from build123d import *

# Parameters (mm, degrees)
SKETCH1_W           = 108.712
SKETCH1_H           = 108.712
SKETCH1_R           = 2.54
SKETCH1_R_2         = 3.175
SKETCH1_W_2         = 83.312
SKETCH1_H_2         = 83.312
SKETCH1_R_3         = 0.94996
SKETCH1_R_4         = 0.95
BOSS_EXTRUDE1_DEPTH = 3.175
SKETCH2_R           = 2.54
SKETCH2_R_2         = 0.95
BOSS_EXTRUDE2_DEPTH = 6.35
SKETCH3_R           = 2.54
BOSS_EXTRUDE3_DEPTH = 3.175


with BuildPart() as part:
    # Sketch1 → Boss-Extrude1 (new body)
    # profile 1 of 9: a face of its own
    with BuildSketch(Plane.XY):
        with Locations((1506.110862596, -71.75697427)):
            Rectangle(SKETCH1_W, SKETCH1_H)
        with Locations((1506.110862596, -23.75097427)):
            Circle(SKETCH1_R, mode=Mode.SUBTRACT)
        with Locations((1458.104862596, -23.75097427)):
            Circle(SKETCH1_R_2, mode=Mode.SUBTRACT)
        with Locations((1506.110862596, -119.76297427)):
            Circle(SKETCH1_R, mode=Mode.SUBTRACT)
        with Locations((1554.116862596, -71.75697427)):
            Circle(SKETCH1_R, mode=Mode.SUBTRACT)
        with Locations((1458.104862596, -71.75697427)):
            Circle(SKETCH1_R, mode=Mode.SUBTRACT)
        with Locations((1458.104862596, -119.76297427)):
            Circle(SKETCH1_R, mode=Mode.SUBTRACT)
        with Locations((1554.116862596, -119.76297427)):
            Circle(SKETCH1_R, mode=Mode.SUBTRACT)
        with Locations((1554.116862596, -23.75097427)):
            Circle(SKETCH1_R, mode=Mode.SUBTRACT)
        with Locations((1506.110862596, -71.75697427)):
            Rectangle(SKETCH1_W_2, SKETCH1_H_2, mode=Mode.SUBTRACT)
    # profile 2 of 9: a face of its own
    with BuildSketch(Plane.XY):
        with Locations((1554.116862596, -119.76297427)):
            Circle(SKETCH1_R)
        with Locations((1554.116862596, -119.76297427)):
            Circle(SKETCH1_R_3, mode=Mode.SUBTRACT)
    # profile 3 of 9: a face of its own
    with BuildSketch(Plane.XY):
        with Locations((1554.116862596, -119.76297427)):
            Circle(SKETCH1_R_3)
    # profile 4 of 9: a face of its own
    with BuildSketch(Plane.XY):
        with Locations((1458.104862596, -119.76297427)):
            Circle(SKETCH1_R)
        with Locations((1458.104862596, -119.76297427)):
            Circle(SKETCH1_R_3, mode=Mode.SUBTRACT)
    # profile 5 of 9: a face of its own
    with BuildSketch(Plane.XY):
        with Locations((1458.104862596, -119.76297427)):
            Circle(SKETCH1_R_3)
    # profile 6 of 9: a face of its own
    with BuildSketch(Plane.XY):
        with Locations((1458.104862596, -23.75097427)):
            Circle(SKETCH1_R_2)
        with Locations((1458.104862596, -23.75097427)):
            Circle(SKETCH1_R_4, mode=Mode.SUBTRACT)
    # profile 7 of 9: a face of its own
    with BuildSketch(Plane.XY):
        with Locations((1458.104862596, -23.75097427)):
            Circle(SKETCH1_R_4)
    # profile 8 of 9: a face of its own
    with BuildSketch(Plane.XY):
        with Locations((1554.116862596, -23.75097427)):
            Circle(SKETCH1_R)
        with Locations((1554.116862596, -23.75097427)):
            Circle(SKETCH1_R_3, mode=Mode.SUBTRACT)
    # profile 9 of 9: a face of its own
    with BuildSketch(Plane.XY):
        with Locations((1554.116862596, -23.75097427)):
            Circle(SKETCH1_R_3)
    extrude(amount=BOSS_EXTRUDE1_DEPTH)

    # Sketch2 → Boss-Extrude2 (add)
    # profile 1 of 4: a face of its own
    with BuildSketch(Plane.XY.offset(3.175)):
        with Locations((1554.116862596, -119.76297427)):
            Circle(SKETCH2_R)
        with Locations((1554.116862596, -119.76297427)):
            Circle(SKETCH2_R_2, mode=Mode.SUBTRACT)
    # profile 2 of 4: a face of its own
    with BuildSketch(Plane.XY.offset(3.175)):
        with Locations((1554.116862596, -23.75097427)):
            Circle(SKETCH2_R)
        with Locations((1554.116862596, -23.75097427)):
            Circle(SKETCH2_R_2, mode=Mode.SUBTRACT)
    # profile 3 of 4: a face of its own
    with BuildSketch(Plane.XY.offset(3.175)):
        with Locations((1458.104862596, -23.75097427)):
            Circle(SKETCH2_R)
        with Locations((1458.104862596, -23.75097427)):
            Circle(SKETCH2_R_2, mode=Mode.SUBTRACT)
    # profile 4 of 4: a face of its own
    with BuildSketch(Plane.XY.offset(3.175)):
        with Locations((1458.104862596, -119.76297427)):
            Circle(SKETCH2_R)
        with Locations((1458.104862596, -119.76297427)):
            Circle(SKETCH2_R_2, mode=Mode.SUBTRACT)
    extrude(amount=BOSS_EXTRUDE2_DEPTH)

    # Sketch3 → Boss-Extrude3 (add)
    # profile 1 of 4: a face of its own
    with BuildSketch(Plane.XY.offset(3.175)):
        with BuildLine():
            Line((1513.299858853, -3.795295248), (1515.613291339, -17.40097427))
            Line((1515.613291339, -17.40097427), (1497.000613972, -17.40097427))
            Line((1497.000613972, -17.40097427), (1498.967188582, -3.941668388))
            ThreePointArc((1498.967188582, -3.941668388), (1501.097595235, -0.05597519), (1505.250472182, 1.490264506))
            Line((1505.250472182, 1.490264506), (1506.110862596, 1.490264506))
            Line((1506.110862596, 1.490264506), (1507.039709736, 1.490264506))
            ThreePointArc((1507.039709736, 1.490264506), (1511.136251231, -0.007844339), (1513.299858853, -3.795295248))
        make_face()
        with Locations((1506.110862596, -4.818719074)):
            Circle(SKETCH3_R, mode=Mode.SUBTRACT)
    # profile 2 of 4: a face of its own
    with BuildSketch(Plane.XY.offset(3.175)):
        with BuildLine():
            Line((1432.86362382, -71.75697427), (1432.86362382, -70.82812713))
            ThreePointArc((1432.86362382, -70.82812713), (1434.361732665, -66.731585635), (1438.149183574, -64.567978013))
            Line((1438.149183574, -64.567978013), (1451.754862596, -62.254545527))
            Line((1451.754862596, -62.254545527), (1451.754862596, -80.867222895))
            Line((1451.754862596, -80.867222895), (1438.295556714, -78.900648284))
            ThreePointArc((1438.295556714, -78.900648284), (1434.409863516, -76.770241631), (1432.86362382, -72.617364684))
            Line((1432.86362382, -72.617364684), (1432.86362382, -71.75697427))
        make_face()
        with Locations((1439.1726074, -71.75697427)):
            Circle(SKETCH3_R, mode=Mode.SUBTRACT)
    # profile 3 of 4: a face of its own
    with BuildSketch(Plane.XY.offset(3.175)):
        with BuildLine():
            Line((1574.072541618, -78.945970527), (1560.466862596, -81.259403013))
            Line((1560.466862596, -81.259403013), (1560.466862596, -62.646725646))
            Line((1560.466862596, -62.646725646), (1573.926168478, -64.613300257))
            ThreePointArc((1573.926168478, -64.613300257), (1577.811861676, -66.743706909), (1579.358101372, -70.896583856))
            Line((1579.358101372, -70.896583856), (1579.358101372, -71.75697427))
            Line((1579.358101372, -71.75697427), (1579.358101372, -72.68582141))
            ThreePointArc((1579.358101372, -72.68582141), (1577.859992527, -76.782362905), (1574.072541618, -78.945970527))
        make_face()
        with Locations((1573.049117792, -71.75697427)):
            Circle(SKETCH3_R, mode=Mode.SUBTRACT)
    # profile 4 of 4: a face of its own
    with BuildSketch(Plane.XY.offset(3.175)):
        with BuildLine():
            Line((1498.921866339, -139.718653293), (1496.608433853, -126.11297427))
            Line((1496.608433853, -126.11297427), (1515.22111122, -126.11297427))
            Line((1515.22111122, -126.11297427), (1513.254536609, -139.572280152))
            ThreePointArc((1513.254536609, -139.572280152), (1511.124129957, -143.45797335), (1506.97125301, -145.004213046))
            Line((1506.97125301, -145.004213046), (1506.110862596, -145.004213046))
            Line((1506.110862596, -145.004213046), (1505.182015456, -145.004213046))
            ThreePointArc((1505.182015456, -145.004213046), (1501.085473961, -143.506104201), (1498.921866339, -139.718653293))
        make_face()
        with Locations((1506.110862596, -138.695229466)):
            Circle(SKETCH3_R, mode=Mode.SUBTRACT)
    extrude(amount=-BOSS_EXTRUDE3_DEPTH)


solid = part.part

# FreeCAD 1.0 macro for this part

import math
import FreeCAD as App
import Part
import Sketcher
Q = App.Units.Quantity

doc = App.newDocument("Part")
body = doc.addObject("PartDesign::Body", "Body")

# Sketch on XY plane
sketch1 = body.newObject("Sketcher::SketchObject", "Sketch")
sketch1.AttachmentSupport = (doc.getObject("XY_Plane"), [""])
sketch1.MapMode = "FlatFace"
sketch1.addGeometry([
    Part.LineSegment(App.Vector(1451.754863, -17.400974, 0), App.Vector(1451.754863, -126.112974, 0)),  # 0
    Part.LineSegment(App.Vector(1451.754863, -126.112974, 0), App.Vector(1560.466863, -126.112974, 0)),  # 1
    Part.LineSegment(App.Vector(1560.466863, -126.112974, 0), App.Vector(1560.466863, -17.400974, 0)),  # 2
    Part.LineSegment(App.Vector(1560.466863, -17.400974, 0), App.Vector(1451.754863, -17.400974, 0)),  # 3
    Part.Circle(App.Vector(1458.104863, -71.756974, 0), App.Vector(0, 0, 1), 2.54),  # 4
    Part.Circle(App.Vector(1506.110863, -119.762974, 0), App.Vector(0, 0, 1), 2.54),  # 5
    Part.LineSegment(App.Vector(1547.766863, -113.412974, 0), App.Vector(1464.454863, -113.412974, 0)),  # 6
    Part.LineSegment(App.Vector(1464.454863, -113.412974, 0), App.Vector(1464.454863, -30.100974, 0)),  # 7
    Part.LineSegment(App.Vector(1464.454863, -30.100974, 0), App.Vector(1547.766863, -30.100974, 0)),  # 8
    Part.LineSegment(App.Vector(1547.766863, -30.100974, 0), App.Vector(1547.766863, -113.412974, 0)),  # 9
    Part.Circle(App.Vector(1554.116863, -71.756974, 0), App.Vector(0, 0, 1), 2.54),  # 10
    Part.Circle(App.Vector(1506.110863, -23.750974, 0), App.Vector(0, 0, 1), 2.54),  # 11
], False)
sketch1.addConstraint([
    Sketcher.Constraint("Coincident", 0, 2, 1, 1),
    Sketcher.Constraint("Coincident", 1, 2, 2, 1),
    Sketcher.Constraint("Coincident", 2, 2, 3, 1),
    Sketcher.Constraint("Coincident", 3, 2, 0, 1),
    Sketcher.Constraint("Coincident", 6, 2, 7, 1),
    Sketcher.Constraint("Coincident", 7, 2, 8, 1),
    Sketcher.Constraint("Coincident", 8, 2, 9, 1),
    Sketcher.Constraint("Coincident", 9, 2, 6, 1),
    Sketcher.Constraint("Vertical", 0),
    Sketcher.Constraint("Horizontal", 1),
    Sketcher.Constraint("Vertical", 2),
    Sketcher.Constraint("Horizontal", 3),
    Sketcher.Constraint("Horizontal", 6),
    Sketcher.Constraint("Vertical", 7),
    Sketcher.Constraint("Horizontal", 8),
    Sketcher.Constraint("Vertical", 9),
    Sketcher.Constraint("Equal", 4, 5),
    Sketcher.Constraint("Equal", 5, 10),
    Sketcher.Constraint("Equal", 10, 11),
    Sketcher.Constraint("Horizontal", 4, 3, 10, 3),
    Sketcher.Constraint("Vertical", 5, 3, 11, 3),
    Sketcher.Constraint("Equal", 3, 0),
    Sketcher.Constraint("Equal", 8, 7),
    Sketcher.Constraint("Diameter", 4, Q("0.2 in")),
    Sketcher.Constraint("DistanceX", 1, 1, 1, 2, Q("4.28 in")),
    Sketcher.Constraint("DistanceX", 6, 2, 6, 1, Q("3.28 in")),
    Sketcher.Constraint("DistanceX", 0, 2, 6, 2, Q("0.5 in")),
    Sketcher.Constraint("DistanceY", 0, 2, 6, 2, Q("0.5 in")),
    Sketcher.Constraint("DistanceX", 4, 3, 5, 3, Q("1.89 in")),
    Sketcher.Constraint("DistanceY", 5, 3, 4, 3, Q("1.89 in")),
    Sketcher.Constraint("DistanceX", 5, 3, 10, 3, Q("1.89 in")),
    Sketcher.Constraint("DistanceY", 10, 3, 11, 3, Q("1.89 in")),
    Sketcher.Constraint("DistanceX", 0, 2, 4, 3, Q("0.25 in")),
    Sketcher.Constraint("DistanceY", 0, 2, 4, 3, Q("2.14 in")),
    Sketcher.Constraint("DistanceX", -1, 1, 4, 3, Q("1458.104863 mm")),
    Sketcher.Constraint("DistanceY", 4, 3, -1, 1, Q("71.756974 mm")),
])
pad1 = body.newObject("PartDesign::Pad", "Pad")
pad1.Profile = sketch1
pad1.Length = Q("0.125 in")

# Sketch on XY plane
sketch2 = body.newObject("Sketcher::SketchObject", "Sketch001")
sketch2.AttachmentSupport = (doc.getObject("XY_Plane"), [""])
sketch2.MapMode = "FlatFace"
sketch2.AttachmentOffset = App.Placement(App.Vector(0, 0, 0.125 * 25.4), App.Rotation())
sketch2.addGeometry([
    Part.Circle(App.Vector(1554.116863, -119.762974, 0), App.Vector(0, 0, 1), 2.54),  # 0
    Part.Circle(App.Vector(1554.116863, -119.762974, 0), App.Vector(0, 0, 1), 0.95),  # 1
    Part.Circle(App.Vector(1554.116863, -23.750974, 0), App.Vector(0, 0, 1), 2.54),  # 2
    Part.Circle(App.Vector(1554.116863, -23.750974, 0), App.Vector(0, 0, 1), 0.95),  # 3
    Part.Circle(App.Vector(1458.104863, -23.750974, 0), App.Vector(0, 0, 1), 2.54),  # 4
    Part.Circle(App.Vector(1458.104863, -23.750974, 0), App.Vector(0, 0, 1), 0.95),  # 5
    Part.Circle(App.Vector(1458.104863, -119.762974, 0), App.Vector(0, 0, 1), 2.54),  # 6
    Part.Circle(App.Vector(1458.104863, -119.762974, 0), App.Vector(0, 0, 1), 0.95),  # 7
], False)
sketch2.addConstraint([
    Sketcher.Constraint("Coincident", 1, 3, 0, 3),
    Sketcher.Constraint("Coincident", 3, 3, 2, 3),
    Sketcher.Constraint("Coincident", 5, 3, 4, 3),
    Sketcher.Constraint("Coincident", 7, 3, 6, 3),
    Sketcher.Constraint("Equal", 0, 2),
    Sketcher.Constraint("Equal", 1, 3),
    Sketcher.Constraint("Equal", 2, 4),
    Sketcher.Constraint("Equal", 3, 5),
    Sketcher.Constraint("Equal", 4, 6),
    Sketcher.Constraint("Equal", 5, 7),
    Sketcher.Constraint("Horizontal", 3, 3, 4, 3),
    Sketcher.Constraint("Horizontal", 1, 3, 6, 3),
    Sketcher.Constraint("Vertical", 1, 3, 2, 3),
    Sketcher.Constraint("Vertical", 5, 3, 6, 3),
    Sketcher.Constraint("Diameter", 0, Q("0.2 in")),
    Sketcher.Constraint("Diameter", 1, Q("1.9 mm")),
    Sketcher.Constraint("DistanceY", 0, 3, 2, 3, Q("3.78 in")),
    Sketcher.Constraint("DistanceX", 4, 3, 2, 3, Q("3.78 in")),
    Sketcher.Constraint("DistanceX", -1, 1, 0, 3, Q("1554.116863 mm")),
    Sketcher.Constraint("DistanceY", 0, 3, -1, 1, Q("119.762974 mm")),
])
pad2 = body.newObject("PartDesign::Pad", "Pad001")
pad2.Profile = sketch2
pad2.Length = Q("0.25 in")

# Sketch on XY plane
sketch3 = body.newObject("Sketcher::SketchObject", "Sketch002")
sketch3.AttachmentSupport = (doc.getObject("XY_Plane"), [""])
sketch3.MapMode = "FlatFace"
sketch3.AttachmentOffset = App.Placement(App.Vector(0, 0, 0.125 * 25.4), App.Rotation())
sketch3.addGeometry([
    Part.LineSegment(App.Vector(1515.613291, -17.400974, 0), App.Vector(1513.299859, -3.795295, 0)),  # 0
    Part.ArcOfCircle(Part.Circle(App.Vector(1507.03971, -4.859735, 0), App.Vector(0, 0, 1), 6.35), math.radians(9.649957), math.radians(90)),  # 1
    Part.LineSegment(App.Vector(1507.03971, 1.490265, 0), App.Vector(1505.250472, 1.490265, 0)),  # 2
    Part.ArcOfCircle(Part.Circle(App.Vector(1505.250472, -4.859735, 0), App.Vector(0, 0, 1), 6.35), math.radians(90), math.radians(171.687186)),  # 3
    Part.LineSegment(App.Vector(1498.967189, -3.941668, 0), App.Vector(1497.000614, -17.400974, 0)),  # 4
    Part.LineSegment(App.Vector(1497.000614, -17.400974, 0), App.Vector(1515.613291, -17.400974, 0)),  # 5
    Part.Circle(App.Vector(1506.110863, -4.818719, 0), App.Vector(0, 0, 1), 2.54),  # 6
    Part.ArcOfCircle(Part.Circle(App.Vector(1439.213624, -70.828127, 0), App.Vector(0, 0, 1), 6.35), math.radians(99.649957), math.radians(180)),  # 7
    Part.LineSegment(App.Vector(1432.863624, -70.828127, 0), App.Vector(1432.863624, -72.617365, 0)),  # 8
    Part.ArcOfCircle(Part.Circle(App.Vector(1439.213624, -72.617365, 0), App.Vector(0, 0, 1), 6.35), math.radians(-180), math.radians(-98.312814)),  # 9
    Part.LineSegment(App.Vector(1438.295557, -78.900648, 0), App.Vector(1451.754863, -80.867223, 0)),  # 10
    Part.LineSegment(App.Vector(1451.754863, -80.867223, 0), App.Vector(1451.754863, -62.254546, 0)),  # 11
    Part.LineSegment(App.Vector(1451.754863, -62.254546, 0), App.Vector(1438.149184, -64.567978, 0)),  # 12
    Part.Circle(App.Vector(1439.172607, -71.756974, 0), App.Vector(0, 0, 1), 2.54),  # 13
    Part.LineSegment(App.Vector(1560.466863, -81.259403, 0), App.Vector(1574.072542, -78.945971, 0)),  # 14
    Part.ArcOfCircle(Part.Circle(App.Vector(1573.008101, -72.685821, 0), App.Vector(0, 0, 1), 6.35), math.radians(-80.350043), math.radians(0)),  # 15
    Part.LineSegment(App.Vector(1579.358101, -72.685821, 0), App.Vector(1579.358101, -70.896584, 0)),  # 16
    Part.ArcOfCircle(Part.Circle(App.Vector(1573.008101, -70.896584, 0), App.Vector(0, 0, 1), 6.35), math.radians(0), math.radians(81.687186)),  # 17
    Part.LineSegment(App.Vector(1573.926168, -64.6133, 0), App.Vector(1560.466863, -62.646726, 0)),  # 18
    Part.LineSegment(App.Vector(1560.466863, -62.646726, 0), App.Vector(1560.466863, -81.259403, 0)),  # 19
    Part.Circle(App.Vector(1573.049118, -71.756974, 0), App.Vector(0, 0, 1), 2.54),  # 20
    Part.LineSegment(App.Vector(1496.608434, -126.112974, 0), App.Vector(1498.921866, -139.718653, 0)),  # 21
    Part.ArcOfCircle(Part.Circle(App.Vector(1505.182015, -138.654213, 0), App.Vector(0, 0, 1), 6.35), math.radians(-170.350043), math.radians(-90)),  # 22
    Part.LineSegment(App.Vector(1505.182015, -145.004213, 0), App.Vector(1506.971253, -145.004213, 0)),  # 23
    Part.ArcOfCircle(Part.Circle(App.Vector(1506.971253, -138.654213, 0), App.Vector(0, 0, 1), 6.35), math.radians(-90), math.radians(-8.312814)),  # 24
    Part.LineSegment(App.Vector(1513.254537, -139.57228, 0), App.Vector(1515.221111, -126.112974, 0)),  # 25
    Part.LineSegment(App.Vector(1515.221111, -126.112974, 0), App.Vector(1496.608434, -126.112974, 0)),  # 26
    Part.Circle(App.Vector(1506.110863, -138.695229, 0), App.Vector(0, 0, 1), 2.54),  # 27
], False)
sketch3.addConstraint([
    Sketcher.Constraint("Tangent", 0, 2, 1, 1),
    Sketcher.Constraint("Tangent", 1, 2, 2, 1),
    Sketcher.Constraint("Tangent", 2, 2, 3, 1),
    Sketcher.Constraint("Tangent", 3, 2, 4, 1),
    Sketcher.Constraint("Coincident", 4, 2, 5, 1),
    Sketcher.Constraint("Coincident", 5, 2, 0, 1),
    Sketcher.Constraint("Tangent", 7, 2, 8, 1),
    Sketcher.Constraint("Tangent", 8, 2, 9, 1),
    Sketcher.Constraint("Tangent", 9, 2, 10, 1),
    Sketcher.Constraint("Coincident", 10, 2, 11, 1),
    Sketcher.Constraint("Coincident", 11, 2, 12, 1),
    Sketcher.Constraint("Tangent", 12, 2, 7, 1),
    Sketcher.Constraint("Tangent", 14, 2, 15, 1),
    Sketcher.Constraint("Tangent", 15, 2, 16, 1),
    Sketcher.Constraint("Tangent", 16, 2, 17, 1),
    Sketcher.Constraint("Tangent", 17, 2, 18, 1),
    Sketcher.Constraint("Coincident", 18, 2, 19, 1),
    Sketcher.Constraint("Coincident", 19, 2, 14, 1),
    Sketcher.Constraint("Tangent", 21, 2, 22, 1),
    Sketcher.Constraint("Tangent", 22, 2, 23, 1),
    Sketcher.Constraint("Tangent", 23, 2, 24, 1),
    Sketcher.Constraint("Tangent", 24, 2, 25, 1),
    Sketcher.Constraint("Coincident", 25, 2, 26, 1),
    Sketcher.Constraint("Coincident", 26, 2, 21, 1),
    Sketcher.Constraint("Horizontal", 2),
    Sketcher.Constraint("Horizontal", 5),
    Sketcher.Constraint("Vertical", 8),
    Sketcher.Constraint("Vertical", 11),
    Sketcher.Constraint("Vertical", 16),
    Sketcher.Constraint("Vertical", 19),
    Sketcher.Constraint("Horizontal", 23),
    Sketcher.Constraint("Horizontal", 26),
    Sketcher.Constraint("Equal", 1, 3),
    Sketcher.Constraint("Equal", 3, 7),
    Sketcher.Constraint("Equal", 7, 9),
    Sketcher.Constraint("Equal", 6, 13),
    Sketcher.Constraint("Equal", 9, 15),
    Sketcher.Constraint("Equal", 15, 17),
    Sketcher.Constraint("Equal", 13, 20),
    Sketcher.Constraint("Equal", 17, 22),
    Sketcher.Constraint("Equal", 22, 24),
    Sketcher.Constraint("Equal", 20, 27),
    Sketcher.Constraint("Perpendicular", 4, 10),
    Sketcher.Constraint("Perpendicular", 0, 12),
    Sketcher.Constraint("Parallel", 12, 14),
    Sketcher.Constraint("Parallel", 10, 18),
    Sketcher.Constraint("Perpendicular", 14, 21),
    Sketcher.Constraint("Perpendicular", 18, 25),
    Sketcher.Constraint("Horizontal", 13, 3, 20, 3),
    Sketcher.Constraint("Vertical", 6, 3, 27, 3),
    Sketcher.Constraint("Equal", 2, 23),
    Sketcher.Constraint("Equal", 5, 26),
    Sketcher.Constraint("Equal", 23, 8),
    Sketcher.Constraint("Equal", 26, 11),
    Sketcher.Constraint("Equal", 8, 16),
    Sketcher.Constraint("Equal", 11, 19),
    Sketcher.Constraint("Diameter", 6, Q("0.2 in")),
    Sketcher.Constraint("Radius", 1, Q("0.25 in")),
    Sketcher.Constraint("DistanceX", -1, 1, 15, 3, Q("1573.008101 mm")),
    Sketcher.Constraint("DistanceY", 17, 2, -1, 1, Q("64.6133 mm")),
    Sketcher.Constraint("Distance", 0, Q("13.800959 mm")),
    Sketcher.Constraint("DistanceX", 2, 2, 2, 1, Q("1.789238 mm")),
    Sketcher.Constraint("DistanceX", 5, 1, 5, 2, Q("18.612677 mm")),
    Sketcher.Constraint("DistanceX", -1, 1, 1, 3, Q("1507.03971 mm")),
    Sketcher.Constraint("DistanceY", 6, 3, -1, 1, Q("4.818719 mm")),
    Sketcher.Constraint("DistanceY", 15, 3, -1, 1, Q("72.685821 mm")),
    Sketcher.Constraint("DistanceY", 27, 3, -1, 1, Q("138.695229 mm")),
    Sketcher.Constraint("DistanceY", 3, 2, -1, 1, Q("3.941668 mm")),
    Sketcher.Constraint("DistanceY", 9, 2, -1, 1, Q("78.900648 mm")),
    Sketcher.Constraint("DistanceY", 24, 2, -1, 1, Q("139.57228 mm")),
    Sketcher.Constraint("DistanceX", -1, 1, 25, 2, Q("1515.221111 mm")),
    Sketcher.Constraint("DistanceX", 3, 3, 6, 3, Q("0.86039 mm")),
    Sketcher.Constraint("DistanceX", 7, 3, 3, 3, Q("66.036848 mm")),
    Sketcher.Constraint("DistanceY", 9, 3, 13, 3, Q("0.86039 mm")),
    Sketcher.Constraint("DistanceX", 1, 3, 20, 3, Q("66.009408 mm")),
    Sketcher.Constraint("DistanceX", 13, 3, 22, 3, Q("66.009408 mm")),
])
pad3 = body.newObject("PartDesign::Pad", "Pad002")
pad3.Profile = sketch3
pad3.Length = Q("0.125 in")
pad3.Reversed = True

doc.recompute()
